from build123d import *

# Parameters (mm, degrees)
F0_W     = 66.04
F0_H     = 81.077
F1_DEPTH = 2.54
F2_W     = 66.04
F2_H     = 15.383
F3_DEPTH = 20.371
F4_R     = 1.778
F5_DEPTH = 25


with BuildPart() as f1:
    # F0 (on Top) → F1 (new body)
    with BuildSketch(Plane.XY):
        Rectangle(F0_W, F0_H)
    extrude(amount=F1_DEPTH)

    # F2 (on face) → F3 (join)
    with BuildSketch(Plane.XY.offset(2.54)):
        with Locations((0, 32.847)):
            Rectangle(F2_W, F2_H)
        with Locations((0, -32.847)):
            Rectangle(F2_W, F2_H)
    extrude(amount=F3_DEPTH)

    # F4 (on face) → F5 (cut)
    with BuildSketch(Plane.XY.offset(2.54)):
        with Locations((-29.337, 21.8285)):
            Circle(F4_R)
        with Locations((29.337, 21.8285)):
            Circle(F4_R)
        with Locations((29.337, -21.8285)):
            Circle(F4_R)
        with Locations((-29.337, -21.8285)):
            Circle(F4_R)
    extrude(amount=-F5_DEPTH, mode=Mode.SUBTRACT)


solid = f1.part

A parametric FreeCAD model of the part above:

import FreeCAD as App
import Part
import Sketcher

V = App.Vector
Q = App.Units.Quantity

doc = App.newDocument("Part")
body = doc.addObject("PartDesign::Body", "Body")

# Sketch on XY plane
sketch1 = body.newObject("Sketcher::SketchObject", "Sketch")
sketch1.AttachmentSupport = (doc.getObject("XY_Plane"), [""])
sketch1.MapMode = "FlatFace"
sketch1.addGeometry(Part.LineSegment(V(-33, 41, 0), V(-33, -41, 0)), False)
sketch1.addGeometry(Part.LineSegment(V(-33, -41, 0), V(33, -41, 0)), False)
sketch1.addGeometry(Part.LineSegment(V(33, -41, 0), V(33, 41, 0)), False)
sketch1.addGeometry(Part.LineSegment(V(33, 41, 0), V(-33, 41, 0)), False)
sketch1.addConstraint(Sketcher.Constraint("Coincident", 0, 2, 1, 1))
sketch1.addConstraint(Sketcher.Constraint("Coincident", 1, 2, 2, 1))
sketch1.addConstraint(Sketcher.Constraint("Coincident", 2, 2, 3, 1))
sketch1.addConstraint(Sketcher.Constraint("Coincident", 3, 2, 0, 1))
sketch1.addConstraint(Sketcher.Constraint("Vertical", 0))
sketch1.addConstraint(Sketcher.Constraint("Horizontal", 1))
sketch1.addConstraint(Sketcher.Constraint("Vertical", 2))
sketch1.addConstraint(Sketcher.Constraint("Horizontal", 3))
sketch1.addConstraint(Sketcher.Constraint("Symmetric", 0, 2, 2, 2, -1, 1))
sketch1.addConstraint(Sketcher.Constraint("DistanceX", 1, 1, 1, 2, Q("2.6 in")))
sketch1.addConstraint(Sketcher.Constraint("DistanceY", 0, 2, 0, 1, 81.077))
pad1 = body.newObject("PartDesign::Pad", "Pad")
pad1.Profile = sketch1
pad1.Length = Q("0.1 in")

# Sketch on XY plane
sketch2 = body.newObject("Sketcher::SketchObject", "Sketch001")
sketch2.AttachmentSupport = (doc.getObject("XY_Plane"), [""])
sketch2.MapMode = "FlatFace"
sketch2.AttachmentOffset = App.Placement(V(0, 0, 0.1 * 25.4), App.Rotation())
sketch2.addGeometry(Part.LineSegment(V(-33, 41, 0), V(-33, 25, 0)), False)
sketch2.addGeometry(Part.LineSegment(V(-33, 25, 0), V(33, 25, 0)), False)
sketch2.addGeometry(Part.LineSegment(V(33, 25, 0), V(33, 41, 0)), False)
sketch2.addGeometry(Part.LineSegment(V(33, 41, 0), V(-33, 41, 0)), False)
sketch2.addGeometry(Part.LineSegment(V(-33, -25, 0), V(-33, -41, 0)), False)
sketch2.addGeometry(Part.LineSegment(V(-33, -41, 0), V(33, -41, 0)), False)
sketch2.addGeometry(Part.LineSegment(V(33, -41, 0), V(33, -25, 0)), False)
sketch2.addGeometry(Part.LineSegment(V(33, -25, 0), V(-33, -25, 0)), False)
sketch2.addConstraint(Sketcher.Constraint("Coincident", 0, 2, 1, 1))
sketch2.addConstraint(Sketcher.Constraint("Coincident", 1, 2, 2, 1))
sketch2.addConstraint(Sketcher.Constraint("Coincident", 2, 2, 3, 1))
sketch2.addConstraint(Sketcher.Constraint("Coincident", 3, 2, 0, 1))
sketch2.addConstraint(Sketcher.Constraint("Coincident", 4, 2, 5, 1))
sketch2.addConstraint(Sketcher.Constraint("Coincident", 5, 2, 6, 1))
sketch2.addConstraint(Sketcher.Constraint("Coincident", 6, 2, 7, 1))
sketch2.addConstraint(Sketcher.Constraint("Coincident", 7, 2, 4, 1))
sketch2.addConstraint(Sketcher.Constraint("Vertical", 0))
sketch2.addConstraint(Sketcher.Constraint("Horizontal", 1))
sketch2.addConstraint(Sketcher.Constraint("Vertical", 2))
sketch2.addConstraint(Sketcher.Constraint("Horizontal", 3))
sketch2.addConstraint(Sketcher.Constraint("Vertical", 4))
sketch2.addConstraint(Sketcher.Constraint("Horizontal", 5))
sketch2.addConstraint(Sketcher.Constraint("Vertical", 6))
sketch2.addConstraint(Sketcher.Constraint("Horizontal", 7))
sketch2.addConstraint(Sketcher.Constraint("Symmetric", 2, 2, 4, 2, -1, 1))
sketch2.addConstraint(Sketcher.Constraint("Symmetric", 0, 2, 6, 2, -1, 1))
sketch2.addConstraint(Sketcher.Constraint("Vertical", 3, 2, 4, 2))
sketch2.addConstraint(Sketcher.Constraint("DistanceX", 1, 1, 1, 2, Q("2.6 in")))
sketch2.addConstraint(Sketcher.Constraint("DistanceY", 0, 2, 0, 1, 15.383))
sketch2.addConstraint(Sketcher.Constraint("DistanceY", -1, 1, 0, 2, 25.1555))
pad2 = body.newObject("PartDesign::Pad", "Pad001")
pad2.Profile = sketch2
pad2.Length = 20.371

# Sketch on XY plane
sketch3 = body.newObject("Sketcher::SketchObject", "Sketch002")
sketch3.AttachmentSupport = (doc.getObject("XY_Plane"), [""])
sketch3.MapMode = "FlatFace"
sketch3.AttachmentOffset = App.Placement(V(0, 0, 0.1 * 25.4), App.Rotation())
sketch3.addGeometry(Part.Circle(V(-29.3, 21.8, 0), V(0, 0, 1), 1.8), False)
sketch3.addGeometry(Part.Circle(V(29.3, 21.8, 0), V(0, 0, 1), 1.8), False)
sketch3.addGeometry(Part.Circle(V(29.3, -21.8, 0), V(0, 0, 1), 1.8), False)
sketch3.addGeometry(Part.Circle(V(-29.3, -21.8, 0), V(0, 0, 1), 1.8), False)
sketch3.addConstraint(Sketcher.Constraint("Equal", 0, 1))
sketch3.addConstraint(Sketcher.Constraint("Equal", 1, 2))
sketch3.addConstraint(Sketcher.Constraint("Equal", 2, 3))
sketch3.addConstraint(Sketcher.Constraint("Symmetric", 0, 3, 2, 3, -1, 1))
sketch3.addConstraint(Sketcher.Constraint("Symmetric", 1, 3, 3, 3, -1, 1))
sketch3.addConstraint(Sketcher.Constraint("Symmetric", 0, 3, 1, 3, -2))
sketch3.addConstraint(Sketcher.Constraint("Diameter", 0, Q("0.14 in")))
sketch3.addConstraint(Sketcher.Constraint("DistanceX", 0, 3, 1, 3, Q("2.31 in")))
sketch3.addConstraint(Sketcher.Constraint("DistanceY", -1, 1, 0, 3, 21.8285))
pocket1 = body.newObject("PartDesign::Pocket", "Pocket")
pocket1.Profile = sketch3
pocket1.Length = 25

doc.recompute()
